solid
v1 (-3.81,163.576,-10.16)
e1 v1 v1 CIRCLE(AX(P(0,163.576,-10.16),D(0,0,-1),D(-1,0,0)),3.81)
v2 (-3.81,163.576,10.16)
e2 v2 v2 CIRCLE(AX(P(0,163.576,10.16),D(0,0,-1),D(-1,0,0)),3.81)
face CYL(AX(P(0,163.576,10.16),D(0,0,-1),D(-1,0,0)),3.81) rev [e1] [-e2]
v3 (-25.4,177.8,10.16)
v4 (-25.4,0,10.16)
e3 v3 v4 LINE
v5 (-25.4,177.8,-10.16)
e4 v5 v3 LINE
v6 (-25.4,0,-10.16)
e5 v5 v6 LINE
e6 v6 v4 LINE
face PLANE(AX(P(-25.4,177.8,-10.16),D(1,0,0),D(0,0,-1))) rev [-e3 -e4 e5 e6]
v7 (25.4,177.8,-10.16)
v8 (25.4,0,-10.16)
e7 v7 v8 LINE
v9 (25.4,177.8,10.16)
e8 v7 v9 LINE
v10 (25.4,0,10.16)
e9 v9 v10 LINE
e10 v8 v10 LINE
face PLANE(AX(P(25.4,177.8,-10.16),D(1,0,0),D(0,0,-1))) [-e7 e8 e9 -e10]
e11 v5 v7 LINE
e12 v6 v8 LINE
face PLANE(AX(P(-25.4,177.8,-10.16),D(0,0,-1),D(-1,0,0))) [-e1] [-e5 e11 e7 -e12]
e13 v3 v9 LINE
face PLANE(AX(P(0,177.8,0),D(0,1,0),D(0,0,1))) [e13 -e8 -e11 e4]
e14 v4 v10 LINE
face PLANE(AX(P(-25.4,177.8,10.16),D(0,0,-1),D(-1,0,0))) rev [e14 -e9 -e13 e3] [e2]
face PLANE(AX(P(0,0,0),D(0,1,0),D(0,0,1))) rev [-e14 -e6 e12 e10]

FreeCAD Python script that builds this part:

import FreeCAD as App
import Part
import Sketcher

V = App.Vector
Q = App.Units.Quantity


def add_polygon(sketch, points):
    """Adds a closed chain of lines whose ends are joined by coincident constraints."""
    first, n = sketch.GeometryCount, len(points)
    for a, b in zip(points, points[1:] + points[:1]):
        sketch.addGeometry(Part.LineSegment(App.Vector(*a, 0), App.Vector(*b, 0)), False)
    for i in range(n):
        sketch.addConstraint(Sketcher.Constraint("Coincident", first + i, 2, first + (i + 1) % n, 1))

doc = App.newDocument("Part")
params = doc.addObject("Spreadsheet::Sheet", "Params")
for row, (alias, value) in enumerate([
    ("sketch1_width", "2 in"),
    ("sketch1_height", "0.8 in"),
    ("pad1_length", "7 in"),
    ("sketch2_diameter", "0.3 in"),
], start=1):
    params.set(f"A{row}", alias)
    params.set(f"B{row}", "=" + value)
    params.setAlias(f"B{row}", alias)

body = doc.addObject("PartDesign::Body", "Body")

# Sketch on XZ plane
sketch1 = doc.addObject("Sketcher::SketchObject", "Sketch")
body.addObject(sketch1)
sketch1.AttachmentSupport = (doc.XZ_Plane, [""])
sketch1.MapMode = "FlatFace"
add_polygon(sketch1, [(-25, -10), (-25, 10), (25, 10), (25, -10)])  # lines 0-3
sketch1.addConstraint(Sketcher.Constraint("Vertical", 0))
sketch1.addConstraint(Sketcher.Constraint("Horizontal", 1))
sketch1.addConstraint(Sketcher.Constraint("Vertical", 2))
sketch1.addConstraint(Sketcher.Constraint("Horizontal", 3))
sketch1.addConstraint(Sketcher.Constraint("Symmetric", 0, 2, 2, 2, -1, 1))
sketch1.addConstraint(Sketcher.Constraint("DistanceX", 1, 1, 1, 2, Q("2 in")))
sketch1.addConstraint(Sketcher.Constraint("DistanceY", 0, 1, 0, 2, Q("0.8 in")))
sketch1.setExpression("Constraints[9]", "Params.sketch1_width")
sketch1.setExpression("Constraints[10]", "Params.sketch1_height")
pad1 = doc.addObject("PartDesign::Pad", "Pad")
body.addObject(pad1)
pad1.Profile = sketch1
pad1.setExpression("Length", "Params.pad1_length")
pad1.Reversed = True

# Sketch on XY plane
sketch2 = doc.addObject("Sketcher::SketchObject", "Sketch001")
body.addObject(sketch2)
sketch2.AttachmentSupport = (doc.XY_Plane, [""])
sketch2.MapMode = "FlatFace"
sketch2.AttachmentOffset = App.Placement(V(0, 0, -0.4 * 25.4), App.Rotation())
sketch2.addGeometry(Part.Circle(V(0, 163.6, 0), V(0, 0, 1), 3.8), False)
sketch2.addConstraint(Sketcher.Constraint("PointOnObject", 0, 3, -2))
sketch2.addConstraint(Sketcher.Constraint("Diameter", 0, Q("0.3 in")))
sketch2.addConstraint(Sketcher.Constraint("DistanceY", -1, 1, 0, 3, Q("6.44 in")))
sketch2.setExpression("Constraints[1]", "Params.sketch2_diameter")
pocket1 = doc.addObject("PartDesign::Pocket", "Pocket")
body.addObject(pocket1)
pocket1.Profile = sketch2
pocket1.Type = "ThroughAll"
pocket1.Reversed = True

doc.recompute()
